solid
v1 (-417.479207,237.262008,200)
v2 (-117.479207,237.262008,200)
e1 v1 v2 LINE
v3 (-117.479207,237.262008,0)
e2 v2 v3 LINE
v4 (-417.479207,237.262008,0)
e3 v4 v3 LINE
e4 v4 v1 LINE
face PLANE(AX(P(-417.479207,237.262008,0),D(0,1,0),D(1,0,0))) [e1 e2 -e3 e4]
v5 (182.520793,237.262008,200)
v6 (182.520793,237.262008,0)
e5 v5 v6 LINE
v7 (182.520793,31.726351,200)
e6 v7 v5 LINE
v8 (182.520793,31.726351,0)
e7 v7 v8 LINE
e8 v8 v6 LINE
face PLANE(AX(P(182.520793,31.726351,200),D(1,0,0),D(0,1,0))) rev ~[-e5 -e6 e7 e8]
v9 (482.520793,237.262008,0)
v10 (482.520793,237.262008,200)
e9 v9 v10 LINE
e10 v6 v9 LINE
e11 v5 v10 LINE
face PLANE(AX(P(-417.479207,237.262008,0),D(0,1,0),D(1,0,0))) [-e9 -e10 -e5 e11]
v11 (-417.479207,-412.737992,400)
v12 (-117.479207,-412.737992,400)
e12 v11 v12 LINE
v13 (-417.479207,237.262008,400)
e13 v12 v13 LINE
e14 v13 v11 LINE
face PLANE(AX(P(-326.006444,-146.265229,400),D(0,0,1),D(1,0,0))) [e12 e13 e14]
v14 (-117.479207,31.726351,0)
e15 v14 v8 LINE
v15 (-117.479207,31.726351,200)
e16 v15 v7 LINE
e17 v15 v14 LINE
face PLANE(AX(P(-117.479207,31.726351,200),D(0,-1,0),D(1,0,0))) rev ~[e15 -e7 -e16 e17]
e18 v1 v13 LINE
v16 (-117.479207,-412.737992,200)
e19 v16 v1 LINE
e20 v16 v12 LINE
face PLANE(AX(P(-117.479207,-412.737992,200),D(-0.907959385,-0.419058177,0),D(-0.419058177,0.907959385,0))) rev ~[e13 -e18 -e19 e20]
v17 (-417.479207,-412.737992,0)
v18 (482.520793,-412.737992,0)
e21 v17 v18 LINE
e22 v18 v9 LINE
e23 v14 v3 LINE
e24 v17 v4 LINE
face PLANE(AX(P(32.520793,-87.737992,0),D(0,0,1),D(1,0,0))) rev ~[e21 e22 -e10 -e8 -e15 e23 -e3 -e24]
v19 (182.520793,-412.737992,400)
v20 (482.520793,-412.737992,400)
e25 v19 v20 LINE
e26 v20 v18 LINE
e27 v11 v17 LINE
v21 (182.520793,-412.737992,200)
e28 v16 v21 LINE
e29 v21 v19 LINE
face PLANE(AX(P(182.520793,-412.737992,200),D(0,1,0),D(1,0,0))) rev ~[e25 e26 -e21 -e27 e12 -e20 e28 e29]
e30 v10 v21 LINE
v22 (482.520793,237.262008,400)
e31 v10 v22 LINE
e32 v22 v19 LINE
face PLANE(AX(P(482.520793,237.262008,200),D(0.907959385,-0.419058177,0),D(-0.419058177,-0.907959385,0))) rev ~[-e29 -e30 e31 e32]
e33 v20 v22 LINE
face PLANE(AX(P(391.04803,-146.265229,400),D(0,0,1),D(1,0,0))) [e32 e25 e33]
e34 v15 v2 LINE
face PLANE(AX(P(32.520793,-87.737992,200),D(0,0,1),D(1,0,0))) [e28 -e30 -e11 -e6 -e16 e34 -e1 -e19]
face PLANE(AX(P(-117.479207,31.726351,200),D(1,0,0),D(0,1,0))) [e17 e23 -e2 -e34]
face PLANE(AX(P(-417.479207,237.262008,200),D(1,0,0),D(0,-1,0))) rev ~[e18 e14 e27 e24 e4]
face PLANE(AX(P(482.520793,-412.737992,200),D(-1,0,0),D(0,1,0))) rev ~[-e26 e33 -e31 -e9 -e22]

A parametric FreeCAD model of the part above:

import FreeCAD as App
import Part
import Sketcher

V = App.Vector


def add_polygon(sketch, points):
    """Adds a closed chain of lines whose ends are joined by coincident constraints."""
    first, n = sketch.GeometryCount, len(points)
    for a, b in zip(points, points[1:] + points[:1]):
        sketch.addGeometry(Part.LineSegment(App.Vector(*a, 0), App.Vector(*b, 0)), False)
    for i in range(n):
        sketch.addConstraint(Sketcher.Constraint("Coincident", first + i, 2, first + (i + 1) % n, 1))

doc = App.newDocument("Part")
body = doc.addObject("PartDesign::Body", "Body")

sketch1 = doc.addObject("Sketcher::SketchObject", "Sketch")
body.addObject(sketch1)
sketch1.AttachmentSupport = (doc.XY_Plane, [""])
sketch1.MapMode = "FlatFace"
add_polygon(sketch1, [(-417, 237), (-417, -413), (483, -413), (483, 237)])
sketch1.addConstraint(Sketcher.Constraint("Vertical", 0))
sketch1.addConstraint(Sketcher.Constraint("Horizontal", 1))
sketch1.addConstraint(Sketcher.Constraint("Vertical", 2))
sketch1.addConstraint(Sketcher.Constraint("Horizontal", 3))
sketch1.addConstraint(Sketcher.Constraint("DistanceX", 1, 1, 1, 2, 900.0))
sketch1.addConstraint(Sketcher.Constraint("DistanceY", 0, 2, 0, 1, 650.0))
sketch1.addConstraint(Sketcher.Constraint("DistanceY", 0, 2, -1, 1, 412.737992))
sketch1.addConstraint(Sketcher.Constraint("DistanceX", 0, 2, -1, 1, 417.479207))
pad1 = doc.addObject("PartDesign::Pad", "Pad")
body.addObject(pad1)
pad1.Profile = sketch1
pad1.Length = 200

sketch2 = doc.addObject("Sketcher::SketchObject", "Sketch001")
body.addObject(sketch2)
sketch2.AttachmentSupport = (doc.XY_Plane, [""])
sketch2.MapMode = "FlatFace"
sketch2.AttachmentOffset = App.Placement(V(0, 0, 200), App.Rotation())
add_polygon(sketch2, [(-117, -413), (-417, 237), (-417, -413)])
sketch2.addConstraint(Sketcher.Constraint("Vertical", 1))
sketch2.addConstraint(Sketcher.Constraint("Horizontal", 2))
sketch2.addConstraint(Sketcher.Constraint("DistanceX", 2, 1, 2, 2, 300.0))
sketch2.addConstraint(Sketcher.Constraint("DistanceY", 1, 2, 1, 1, 650.0))
sketch2.addConstraint(Sketcher.Constraint("DistanceY", -1, 1, 0, 2, 237.262008))
sketch2.addConstraint(Sketcher.Constraint("DistanceX", 0, 2, -1, 1, 417.479207))
pad2 = doc.addObject("PartDesign::Pad", "Pad001")
body.addObject(pad2)
pad2.Profile = sketch2
pad2.Length = 200

sketch3 = doc.addObject("Sketcher::SketchObject", "Sketch002")
body.addObject(sketch3)
sketch3.AttachmentSupport = (doc.XY_Plane, [""])
sketch3.MapMode = "FlatFace"
sketch3.AttachmentOffset = App.Placement(V(0, 0, 200), App.Rotation())
add_polygon(sketch3, [(483, -413), (483, 237), (183, -413)])
sketch3.addConstraint(Sketcher.Constraint("Vertical", 0))
sketch3.addConstraint(Sketcher.Constraint("Horizontal", 2))
sketch3.addConstraint(Sketcher.Constraint("DistanceX", 2, 1, 2, 2, 300.0))
sketch3.addConstraint(Sketcher.Constraint("DistanceY", 0, 1, 0, 2, 650.0))
sketch3.addConstraint(Sketcher.Constraint("DistanceY", -1, 1, 0, 2, 237.262008))
sketch3.addConstraint(Sketcher.Constraint("DistanceX", -1, 1, 0, 2, 482.520793))
pad3 = doc.addObject("PartDesign::Pad", "Pad002")
body.addObject(pad3)
pad3.Profile = sketch3
pad3.Length = 200

sketch4 = doc.addObject("Sketcher::SketchObject", "Sketch003")
body.addObject(sketch4)
sketch4.AttachmentSupport = (doc.XY_Plane, [""])
sketch4.MapMode = "FlatFace"
sketch4.AttachmentOffset = App.Placement(V(0, 0, 200), App.Rotation())
add_polygon(sketch4, [(-117, 237), (-117, 32), (183, 32), (183, 237)])
sketch4.addConstraint(Sketcher.Constraint("Vertical", 0))
sketch4.addConstraint(Sketcher.Constraint("Horizontal", 1))
sketch4.addConstraint(Sketcher.Constraint("Vertical", 2))
sketch4.addConstraint(Sketcher.Constraint("Horizontal", 3))
sketch4.addConstraint(Sketcher.Constraint("DistanceX", 1, 1, 1, 2, 300.0))
sketch4.addConstraint(Sketcher.Constraint("DistanceY", 0, 2, 0, 1, 205.535657))
sketch4.addConstraint(Sketcher.Constraint("DistanceY", -1, 1, 0, 2, 31.726351))
sketch4.addConstraint(Sketcher.Constraint("DistanceX", 0, 2, -1, 1, 117.479207))
pocket1 = doc.addObject("PartDesign::Pocket", "Pocket")
body.addObject(pocket1)
pocket1.Profile = sketch4
pocket1.Length = 281.52459

doc.recompute()
